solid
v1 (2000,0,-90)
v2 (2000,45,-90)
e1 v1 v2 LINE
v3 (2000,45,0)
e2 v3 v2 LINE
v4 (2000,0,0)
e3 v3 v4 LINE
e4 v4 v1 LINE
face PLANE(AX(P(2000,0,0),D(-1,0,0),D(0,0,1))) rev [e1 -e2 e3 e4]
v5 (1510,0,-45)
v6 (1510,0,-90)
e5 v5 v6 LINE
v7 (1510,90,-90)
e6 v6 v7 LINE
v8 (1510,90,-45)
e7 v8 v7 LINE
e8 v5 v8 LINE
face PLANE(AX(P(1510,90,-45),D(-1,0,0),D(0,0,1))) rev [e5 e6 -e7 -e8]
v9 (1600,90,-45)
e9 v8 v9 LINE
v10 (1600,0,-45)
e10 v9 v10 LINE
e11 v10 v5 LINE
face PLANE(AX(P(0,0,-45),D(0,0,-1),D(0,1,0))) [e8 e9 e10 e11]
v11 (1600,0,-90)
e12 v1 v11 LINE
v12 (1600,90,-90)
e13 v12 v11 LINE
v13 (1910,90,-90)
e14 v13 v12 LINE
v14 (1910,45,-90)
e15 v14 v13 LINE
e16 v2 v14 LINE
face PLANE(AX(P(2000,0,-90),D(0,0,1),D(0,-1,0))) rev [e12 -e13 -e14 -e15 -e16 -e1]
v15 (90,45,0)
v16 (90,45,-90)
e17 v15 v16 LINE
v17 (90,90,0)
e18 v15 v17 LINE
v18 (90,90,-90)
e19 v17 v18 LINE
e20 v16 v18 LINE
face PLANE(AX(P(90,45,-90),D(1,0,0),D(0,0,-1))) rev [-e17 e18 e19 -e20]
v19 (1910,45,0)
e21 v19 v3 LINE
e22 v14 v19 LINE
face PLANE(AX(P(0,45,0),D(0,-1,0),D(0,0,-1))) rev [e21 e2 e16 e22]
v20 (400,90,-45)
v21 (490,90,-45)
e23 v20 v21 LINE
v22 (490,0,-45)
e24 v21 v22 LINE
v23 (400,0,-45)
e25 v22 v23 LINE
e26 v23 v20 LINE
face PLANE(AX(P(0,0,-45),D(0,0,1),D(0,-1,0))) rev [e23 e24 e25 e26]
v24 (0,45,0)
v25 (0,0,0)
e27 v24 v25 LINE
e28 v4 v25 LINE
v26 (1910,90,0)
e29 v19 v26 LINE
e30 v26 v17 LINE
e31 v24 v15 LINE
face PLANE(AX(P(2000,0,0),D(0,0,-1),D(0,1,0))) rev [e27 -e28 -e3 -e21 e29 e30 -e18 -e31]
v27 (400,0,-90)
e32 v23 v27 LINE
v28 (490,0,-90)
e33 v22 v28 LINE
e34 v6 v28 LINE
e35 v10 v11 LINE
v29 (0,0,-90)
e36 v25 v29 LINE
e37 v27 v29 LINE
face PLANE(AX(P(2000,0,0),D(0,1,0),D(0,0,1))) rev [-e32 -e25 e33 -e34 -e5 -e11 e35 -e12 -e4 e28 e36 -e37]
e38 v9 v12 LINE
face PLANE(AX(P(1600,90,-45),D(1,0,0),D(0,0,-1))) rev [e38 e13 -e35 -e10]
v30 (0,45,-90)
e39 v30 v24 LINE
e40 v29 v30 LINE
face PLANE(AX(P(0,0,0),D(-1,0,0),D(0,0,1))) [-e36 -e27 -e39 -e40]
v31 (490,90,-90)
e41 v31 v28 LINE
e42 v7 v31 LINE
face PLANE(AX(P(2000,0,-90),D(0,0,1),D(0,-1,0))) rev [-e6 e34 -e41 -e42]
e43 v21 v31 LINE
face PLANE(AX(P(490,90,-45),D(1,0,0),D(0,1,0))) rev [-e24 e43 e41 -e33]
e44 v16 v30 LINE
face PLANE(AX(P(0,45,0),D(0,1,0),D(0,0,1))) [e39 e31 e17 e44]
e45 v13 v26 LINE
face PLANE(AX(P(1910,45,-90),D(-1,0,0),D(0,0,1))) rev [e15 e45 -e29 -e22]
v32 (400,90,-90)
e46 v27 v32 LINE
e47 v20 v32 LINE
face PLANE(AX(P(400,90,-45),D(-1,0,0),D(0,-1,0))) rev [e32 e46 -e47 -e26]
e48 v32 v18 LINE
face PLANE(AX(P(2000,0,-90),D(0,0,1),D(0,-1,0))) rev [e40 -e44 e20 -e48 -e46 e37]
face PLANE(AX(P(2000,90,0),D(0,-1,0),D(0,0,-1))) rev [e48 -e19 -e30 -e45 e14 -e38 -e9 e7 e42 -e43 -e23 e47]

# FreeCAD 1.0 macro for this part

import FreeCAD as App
import Part
import Sketcher
from FreeCAD import Vector
Q = App.Units.Quantity

doc = App.newDocument("Part")
body = doc.addObject("PartDesign::Body", "Body")

sketch1 = body.newObject("Sketcher::SketchObject", "Sketch")
sketch1.AttachmentSupport = (doc.getObject("YZ_Plane"), [""])
sketch1.MapMode = "FlatFace"
sketch1.addGeometry([
    Part.LineSegment(Vector(90, 0, 0), Vector(0, 0, 0)),
    Part.LineSegment(Vector(0, 0, 0), Vector(0, -90, 0)),
    Part.LineSegment(Vector(0, -90, 0), Vector(90, -90, 0)),
    Part.LineSegment(Vector(90, -90, 0), Vector(90, 0, 0)),
], False)
sketch1.addConstraint([
    Sketcher.Constraint("Coincident", 0, 2, 1, 1),
    Sketcher.Constraint("Coincident", 1, 2, 2, 1),
    Sketcher.Constraint("Coincident", 2, 2, 3, 1),
    Sketcher.Constraint("Coincident", 3, 2, 0, 1),
    Sketcher.Constraint("Horizontal", 0),
    Sketcher.Constraint("Vertical", 1),
    Sketcher.Constraint("Horizontal", 2),
    Sketcher.Constraint("Vertical", 3),
    Sketcher.Constraint("Coincident", 0, 2, -1, 1),
    Sketcher.Constraint("Equal", 2, 1),
    Sketcher.Constraint("DistanceX", 0, 2, 0, 1, Q("90 mm")),
])
pad1 = body.newObject("PartDesign::Pad", "Pad")
pad1.Profile = sketch1
pad1.Length = 2000

sketch2 = body.newObject("Sketcher::SketchObject", "Sketch001")
sketch2.AttachmentSupport = (doc.getObject("XZ_Plane"), [""])
sketch2.MapMode = "FlatFace"
sketch2.AttachmentOffset = App.Placement(Vector(0, 0, -90), App.Rotation())
sketch2.addGeometry([
    Part.LineSegment(Vector(0, -90, 0), Vector(0, 0, 0)),
    Part.LineSegment(Vector(0, 0, 0), Vector(90, 0, 0)),
    Part.LineSegment(Vector(90, 0, 0), Vector(90, -90, 0)),
    Part.LineSegment(Vector(90, -90, 0), Vector(0, -90, 0)),
    Part.LineSegment(Vector(1910, -90, 0), Vector(1910, 0, 0)),
    Part.LineSegment(Vector(1910, 0, 0), Vector(2000, 0, 0)),
    Part.LineSegment(Vector(2000, 0, 0), Vector(2000, -90, 0)),
    Part.LineSegment(Vector(2000, -90, 0), Vector(1910, -90, 0)),
], False)
sketch2.addConstraint([
    Sketcher.Constraint("Coincident", 0, 2, 1, 1),
    Sketcher.Constraint("Coincident", 1, 2, 2, 1),
    Sketcher.Constraint("Coincident", 2, 2, 3, 1),
    Sketcher.Constraint("Coincident", 3, 2, 0, 1),
    Sketcher.Constraint("Coincident", 4, 2, 5, 1),
    Sketcher.Constraint("Coincident", 5, 2, 6, 1),
    Sketcher.Constraint("Coincident", 6, 2, 7, 1),
    Sketcher.Constraint("Coincident", 7, 2, 4, 1),
    Sketcher.Constraint("Vertical", 0),
    Sketcher.Constraint("Horizontal", 1),
    Sketcher.Constraint("Vertical", 2),
    Sketcher.Constraint("Horizontal", 3),
    Sketcher.Constraint("Vertical", 4),
    Sketcher.Constraint("Horizontal", 5),
    Sketcher.Constraint("Vertical", 6),
    Sketcher.Constraint("Horizontal", 7),
    Sketcher.Constraint("Coincident", 0, 2, -1, 1),
    Sketcher.Constraint("PointOnObject", 4, 2, -1),
    Sketcher.Constraint("Horizontal", 3, 2, 6, 2),
    Sketcher.Constraint("Equal", 3, 5),
    Sketcher.Constraint("Equal", 7, 0),
    Sketcher.Constraint("DistanceX", 1, 1, 1, 2, Q("90 mm")),
    Sketcher.Constraint("DistanceX", -1, 1, 4, 2, Q("1910 mm")),
])
pocket1 = body.newObject("PartDesign::Pocket", "Pocket")
pocket1.Profile = sketch2
pocket1.Length = 45
pocket1.Reversed = True

sketch3 = body.newObject("Sketcher::SketchObject", "Sketch002")
sketch3.AttachmentSupport = (doc.getObject("XY_Plane"), [""])
sketch3.MapMode = "FlatFace"
sketch3.AttachmentOffset = App.Placement(Vector(0, 0, -90), App.Rotation())
sketch3.addGeometry([
    Part.LineSegment(Vector(1600, 90, 0), Vector(1600, 0, 0)),
    Part.LineSegment(Vector(1600, 0, 0), Vector(1510, 0, 0)),
    Part.LineSegment(Vector(1510, 0, 0), Vector(1510, 90, 0)),
    Part.LineSegment(Vector(1510, 90, 0), Vector(1600, 90, 0)),
    Part.LineSegment(Vector(490, 90, 0), Vector(490, 0, 0)),
    Part.LineSegment(Vector(490, 0, 0), Vector(400, 0, 0)),
    Part.LineSegment(Vector(400, 0, 0), Vector(400, 90, 0)),
    Part.LineSegment(Vector(400, 90, 0), Vector(490, 90, 0)),
], False)
sketch3.addConstraint([
    Sketcher.Constraint("Coincident", 0, 2, 1, 1),
    Sketcher.Constraint("Coincident", 1, 2, 2, 1),
    Sketcher.Constraint("Coincident", 2, 2, 3, 1),
    Sketcher.Constraint("Coincident", 3, 2, 0, 1),
    Sketcher.Constraint("Coincident", 4, 2, 5, 1),
    Sketcher.Constraint("Coincident", 5, 2, 6, 1),
    Sketcher.Constraint("Coincident", 6, 2, 7, 1),
    Sketcher.Constraint("Coincident", 7, 2, 4, 1),
    Sketcher.Constraint("Vertical", 0),
    Sketcher.Constraint("Horizontal", 1),
    Sketcher.Constraint("Vertical", 2),
    Sketcher.Constraint("Horizontal", 3),
    Sketcher.Constraint("Vertical", 4),
    Sketcher.Constraint("Horizontal", 5),
    Sketcher.Constraint("Vertical", 6),
    Sketcher.Constraint("Horizontal", 7),
    Sketcher.Constraint("PointOnObject", 0, 2, -1),
    Sketcher.Constraint("PointOnObject", 4, 2, -1),
    Sketcher.Constraint("Horizontal", 3, 2, 6, 2),
    Sketcher.Constraint("Equal", 3, 5),
    Sketcher.Constraint("Equal", 7, 0),
    Sketcher.Constraint("DistanceX", 1, 2, 1, 1, Q("90 mm")),
    Sketcher.Constraint("DistanceX", -1, 1, 0, 2, Q("1600 mm")),
    Sketcher.Constraint("DistanceX", -1, 1, 4, 2, Q("490 mm")),
])
pocket2 = body.newObject("PartDesign::Pocket", "Pocket001")
pocket2.Profile = sketch3
pocket2.Length = 45
pocket2.Reversed = True

doc.recompute()
